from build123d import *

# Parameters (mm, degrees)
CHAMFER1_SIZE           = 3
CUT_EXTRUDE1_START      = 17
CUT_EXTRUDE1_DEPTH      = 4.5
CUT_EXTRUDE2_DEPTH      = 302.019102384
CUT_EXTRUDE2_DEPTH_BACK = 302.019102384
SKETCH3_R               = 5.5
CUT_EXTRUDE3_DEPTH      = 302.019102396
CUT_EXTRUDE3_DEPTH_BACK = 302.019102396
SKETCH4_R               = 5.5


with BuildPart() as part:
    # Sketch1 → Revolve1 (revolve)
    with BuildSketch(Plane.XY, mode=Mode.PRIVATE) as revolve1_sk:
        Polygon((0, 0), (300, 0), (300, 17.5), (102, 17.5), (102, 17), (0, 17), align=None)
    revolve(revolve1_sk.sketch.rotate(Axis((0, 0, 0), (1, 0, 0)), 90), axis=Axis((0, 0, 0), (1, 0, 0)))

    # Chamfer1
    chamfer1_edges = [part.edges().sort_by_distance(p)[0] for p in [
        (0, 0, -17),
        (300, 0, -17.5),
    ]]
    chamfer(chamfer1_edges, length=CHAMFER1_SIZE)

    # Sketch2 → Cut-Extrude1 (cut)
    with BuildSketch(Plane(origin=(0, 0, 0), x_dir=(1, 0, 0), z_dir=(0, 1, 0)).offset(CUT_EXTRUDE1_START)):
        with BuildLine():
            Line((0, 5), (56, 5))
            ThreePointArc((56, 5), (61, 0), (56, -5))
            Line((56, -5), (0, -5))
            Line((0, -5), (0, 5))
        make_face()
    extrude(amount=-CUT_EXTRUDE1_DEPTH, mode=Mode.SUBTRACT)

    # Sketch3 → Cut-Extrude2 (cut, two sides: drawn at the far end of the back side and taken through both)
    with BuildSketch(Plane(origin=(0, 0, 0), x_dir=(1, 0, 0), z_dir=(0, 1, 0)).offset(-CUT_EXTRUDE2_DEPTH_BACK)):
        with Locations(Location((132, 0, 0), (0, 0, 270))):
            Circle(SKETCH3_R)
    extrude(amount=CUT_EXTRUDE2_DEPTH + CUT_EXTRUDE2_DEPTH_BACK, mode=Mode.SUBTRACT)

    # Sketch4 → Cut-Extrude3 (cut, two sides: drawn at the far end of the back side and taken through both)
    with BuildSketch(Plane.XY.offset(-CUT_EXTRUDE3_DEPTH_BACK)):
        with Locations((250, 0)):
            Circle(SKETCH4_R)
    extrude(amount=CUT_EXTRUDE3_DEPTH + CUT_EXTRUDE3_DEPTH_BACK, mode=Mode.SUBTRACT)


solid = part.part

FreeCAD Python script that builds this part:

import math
import FreeCAD as App
import Part
import Sketcher
Q = App.Units.Quantity


def edges_at(feature, points):
    """Names of the edges that pass closest to the given points."""
    edges = feature.Shape.Edges
    near = lambda p: min(range(len(edges)), key=lambda i: edges[i].distToShape(Part.Vertex(*p))[0])
    return sorted({f"Edge{near(p) + 1}" for p in points})


def add_polygon(sketch, points):
    """Adds a closed chain of lines whose ends are joined by coincident constraints."""
    first, n = sketch.GeometryCount, len(points)
    for a, b in zip(points, points[1:] + points[:1]):
        sketch.addGeometry(Part.LineSegment(App.Vector(*a, 0), App.Vector(*b, 0)), False)
    for i in range(n):
        sketch.addConstraint(Sketcher.Constraint("Coincident", first + i, 2, first + (i + 1) % n, 1))

doc = App.newDocument("Part")
body = doc.addObject("PartDesign::Body", "Body")

sketch1 = doc.addObject("Sketcher::SketchObject", "Sketch")
body.addObject(sketch1)
sketch1.AttachmentSupport = (doc.XY_Plane, [""])
sketch1.MapMode = "FlatFace"
add_polygon(sketch1, [(0, 0), (300, 0), (300, 17.5), (102, 17.5), (102, 17), (0, 17)])
sketch1.addConstraint(Sketcher.Constraint("Horizontal", 0))
sketch1.addConstraint(Sketcher.Constraint("Vertical", 1))
sketch1.addConstraint(Sketcher.Constraint("Horizontal", 2))
sketch1.addConstraint(Sketcher.Constraint("Vertical", 3))
sketch1.addConstraint(Sketcher.Constraint("Horizontal", 4))
sketch1.addConstraint(Sketcher.Constraint("Vertical", 5))
sketch1.addConstraint(Sketcher.Constraint("Coincident", 5, 2, -1, 1))
sketch1.addConstraint(Sketcher.Constraint("DistanceX", 0, 1, 0, 2, Q("300 mm")))
sketch1.addConstraint(Sketcher.Constraint("DistanceX", 2, 2, 2, 1, Q("198 mm")))
sketch1.addConstraint(Sketcher.Constraint("DistanceY", 5, 2, 5, 1, Q("17 mm")))
sketch1.addConstraint(Sketcher.Constraint("DistanceY", 1, 1, 1, 2, Q("17.5 mm")))
revolution = doc.addObject("PartDesign::Revolution", "Revolution")
body.addObject(revolution)
revolution.Profile = sketch1
revolution.ReferenceAxis = (sketch1, ["H_Axis"])
revolution.Angle = 360
doc.recompute()

chamfer = doc.addObject("PartDesign::Chamfer", "Chamfer")
body.addObject(chamfer)
chamfer.Base = (revolution, edges_at(revolution, [(0, 0, -17), (300, 0, -17.5)]))
chamfer.Size = 3

sketch2 = doc.addObject("Sketcher::SketchObject", "Sketch001")
body.addObject(sketch2)
sketch2.AttachmentSupport = (doc.XZ_Plane, [""])
sketch2.MapMode = "FlatFace"
sketch2.AttachmentOffset = App.Placement(App.Vector(0, 0, -17), App.Rotation())
sketch2.addGeometry(Part.LineSegment(App.Vector(56, -5, 0), App.Vector(0, -5, 0)), False)
sketch2.addGeometry(Part.LineSegment(App.Vector(0, -5, 0), App.Vector(0, 5, 0)), False)
sketch2.addGeometry(Part.LineSegment(App.Vector(0, 5, 0), App.Vector(56, 5, 0)), False)
sketch2.addGeometry(Part.ArcOfCircle(Part.Circle(App.Vector(56, 0, 0), App.Vector(0, 0, 1), 5), math.radians(-90), math.radians(90)), False)
sketch2.addConstraint(Sketcher.Constraint("Coincident", 0, 2, 1, 1))
sketch2.addConstraint(Sketcher.Constraint("Coincident", 1, 2, 2, 1))
sketch2.addConstraint(Sketcher.Constraint("Tangent", 2, 2, 3, 2))
sketch2.addConstraint(Sketcher.Constraint("Tangent", 3, 1, 0, 1))
sketch2.addConstraint(Sketcher.Constraint("Horizontal", 0))
sketch2.addConstraint(Sketcher.Constraint("Vertical", 1))
sketch2.addConstraint(Sketcher.Constraint("Horizontal", 2))
sketch2.addConstraint(Sketcher.Constraint("Symmetric", 0, 2, 1, 2, -1, 1))
sketch2.addConstraint(Sketcher.Constraint("Radius", 3, Q("5 mm")))
sketch2.addConstraint(Sketcher.Constraint("DistanceX", 0, 2, 0, 1, Q("56 mm")))
pocket1 = doc.addObject("PartDesign::Pocket", "Pocket")
body.addObject(pocket1)
pocket1.Profile = sketch2
pocket1.Length = 4.5
pocket1.Reversed = True

sketch3 = doc.addObject("Sketcher::SketchObject", "Sketch002")
body.addObject(sketch3)
sketch3.AttachmentSupport = (doc.XZ_Plane, [""])
sketch3.MapMode = "FlatFace"
sketch3.addGeometry(Part.Circle(App.Vector(132, 0, 0), App.Vector(0, 0, 1), 6), False)
sketch3.addConstraint(Sketcher.Constraint("PointOnObject", 0, 3, -1))
sketch3.addConstraint(Sketcher.Constraint("Diameter", 0, Q("11 mm")))
sketch3.addConstraint(Sketcher.Constraint("DistanceX", -1, 1, 0, 3, Q("132 mm")))
pocket2 = doc.addObject("PartDesign::Pocket", "Pocket001")
body.addObject(pocket2)
pocket2.Profile = sketch3
pocket2.Type = "ThroughAll"
pocket2.Midplane = True

sketch4 = doc.addObject("Sketcher::SketchObject", "Sketch003")
body.addObject(sketch4)
sketch4.AttachmentSupport = (doc.XY_Plane, [""])
sketch4.MapMode = "FlatFace"
sketch4.addGeometry(Part.Circle(App.Vector(250, 0, 0), App.Vector(0, 0, 1), 6), False)
sketch4.addConstraint(Sketcher.Constraint("PointOnObject", 0, 3, -1))
sketch4.addConstraint(Sketcher.Constraint("Diameter", 0, Q("11 mm")))
sketch4.addConstraint(Sketcher.Constraint("DistanceX", -1, 1, 0, 3, Q("250 mm")))
pocket3 = doc.addObject("PartDesign::Pocket", "Pocket002")
body.addObject(pocket3)
pocket3.Profile = sketch4
pocket3.Type = "ThroughAll"
pocket3.Midplane = True

doc.recompute()
